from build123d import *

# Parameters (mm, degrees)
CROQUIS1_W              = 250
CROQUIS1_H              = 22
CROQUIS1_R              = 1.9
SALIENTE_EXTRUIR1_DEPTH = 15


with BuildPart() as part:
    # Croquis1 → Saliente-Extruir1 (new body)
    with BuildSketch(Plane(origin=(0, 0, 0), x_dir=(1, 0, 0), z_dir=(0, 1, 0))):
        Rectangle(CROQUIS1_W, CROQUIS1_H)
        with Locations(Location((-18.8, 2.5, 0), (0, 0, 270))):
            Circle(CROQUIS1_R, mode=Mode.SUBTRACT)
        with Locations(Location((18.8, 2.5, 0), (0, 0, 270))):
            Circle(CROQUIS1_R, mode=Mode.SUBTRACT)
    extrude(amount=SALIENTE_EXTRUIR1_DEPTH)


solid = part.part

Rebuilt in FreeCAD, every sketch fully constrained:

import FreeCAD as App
import Part
import Sketcher
from FreeCAD import Vector


def add_polygon(sketch, points):
    """Adds a closed chain of lines whose ends are joined by coincident constraints."""
    first, n = sketch.GeometryCount, len(points)
    for a, b in zip(points, points[1:] + points[:1]):
        sketch.addGeometry(Part.LineSegment(App.Vector(*a, 0), App.Vector(*b, 0)), False)
    for i in range(n):
        sketch.addConstraint(Sketcher.Constraint("Coincident", first + i, 2, first + (i + 1) % n, 1))

doc = App.newDocument("Part")
params = doc.addObject("Spreadsheet::Sheet", "Params")
for row, (alias, value) in enumerate([
    ("sketch1_diameter", "3.8 mm"),
    ("sketch1_width", "250 mm"),
    ("sketch1_height", "22 mm"),
    ("pad1_length", "15 mm"),
], start=1):
    params.set(f"A{row}", alias)
    params.set(f"B{row}", "=" + value)
    params.setAlias(f"B{row}", alias)

body = doc.addObject("PartDesign::Body", "Body")

sketch1 = body.newObject("Sketcher::SketchObject", "Sketch")
sketch1.AttachmentSupport = (doc.getObject("XZ_Plane"), [""])
sketch1.MapMode = "FlatFace"
add_polygon(sketch1, [(-125, -11), (-125, 11), (125, 11), (125, -11)])
sketch1.addGeometry(Part.Circle(Vector(-18.8, -2.5, 0), Vector(0, 0, 1), 1.9), False)
sketch1.addGeometry(Part.Circle(Vector(18.8, -2.5, 0), Vector(0, 0, 1), 1.9), False)
sketch1.addConstraint([
    Sketcher.Constraint("Vertical", 0),
    Sketcher.Constraint("Horizontal", 1),
    Sketcher.Constraint("Vertical", 2),
    Sketcher.Constraint("Horizontal", 3),
    Sketcher.Constraint("Equal", 4, 5),
    Sketcher.Constraint("Symmetric", 0, 2, 2, 2, -1, 1),
    Sketcher.Constraint("Symmetric", 4, 3, 5, 3, -2),
    Sketcher.Constraint("Diameter", 4, 3.8),
    Sketcher.Constraint("DistanceX", 1, 1, 1, 2, 250.0),
    Sketcher.Constraint("DistanceY", 0, 1, 0, 2, 22.0),
    Sketcher.Constraint("DistanceX", 4, 3, -1, 1, 18.8),
    Sketcher.Constraint("DistanceY", 4, 3, -1, 1, 2.5),
])
sketch1.setExpression("Constraints[11]", "Params.sketch1_diameter")
sketch1.setExpression("Constraints[12]", "Params.sketch1_width")
sketch1.setExpression("Constraints[13]", "Params.sketch1_height")
pad1 = body.newObject("PartDesign::Pad", "Pad")
pad1.Profile = sketch1
pad1.setExpression("Length", "Params.pad1_length")
pad1.Reversed = True

doc.recompute()
